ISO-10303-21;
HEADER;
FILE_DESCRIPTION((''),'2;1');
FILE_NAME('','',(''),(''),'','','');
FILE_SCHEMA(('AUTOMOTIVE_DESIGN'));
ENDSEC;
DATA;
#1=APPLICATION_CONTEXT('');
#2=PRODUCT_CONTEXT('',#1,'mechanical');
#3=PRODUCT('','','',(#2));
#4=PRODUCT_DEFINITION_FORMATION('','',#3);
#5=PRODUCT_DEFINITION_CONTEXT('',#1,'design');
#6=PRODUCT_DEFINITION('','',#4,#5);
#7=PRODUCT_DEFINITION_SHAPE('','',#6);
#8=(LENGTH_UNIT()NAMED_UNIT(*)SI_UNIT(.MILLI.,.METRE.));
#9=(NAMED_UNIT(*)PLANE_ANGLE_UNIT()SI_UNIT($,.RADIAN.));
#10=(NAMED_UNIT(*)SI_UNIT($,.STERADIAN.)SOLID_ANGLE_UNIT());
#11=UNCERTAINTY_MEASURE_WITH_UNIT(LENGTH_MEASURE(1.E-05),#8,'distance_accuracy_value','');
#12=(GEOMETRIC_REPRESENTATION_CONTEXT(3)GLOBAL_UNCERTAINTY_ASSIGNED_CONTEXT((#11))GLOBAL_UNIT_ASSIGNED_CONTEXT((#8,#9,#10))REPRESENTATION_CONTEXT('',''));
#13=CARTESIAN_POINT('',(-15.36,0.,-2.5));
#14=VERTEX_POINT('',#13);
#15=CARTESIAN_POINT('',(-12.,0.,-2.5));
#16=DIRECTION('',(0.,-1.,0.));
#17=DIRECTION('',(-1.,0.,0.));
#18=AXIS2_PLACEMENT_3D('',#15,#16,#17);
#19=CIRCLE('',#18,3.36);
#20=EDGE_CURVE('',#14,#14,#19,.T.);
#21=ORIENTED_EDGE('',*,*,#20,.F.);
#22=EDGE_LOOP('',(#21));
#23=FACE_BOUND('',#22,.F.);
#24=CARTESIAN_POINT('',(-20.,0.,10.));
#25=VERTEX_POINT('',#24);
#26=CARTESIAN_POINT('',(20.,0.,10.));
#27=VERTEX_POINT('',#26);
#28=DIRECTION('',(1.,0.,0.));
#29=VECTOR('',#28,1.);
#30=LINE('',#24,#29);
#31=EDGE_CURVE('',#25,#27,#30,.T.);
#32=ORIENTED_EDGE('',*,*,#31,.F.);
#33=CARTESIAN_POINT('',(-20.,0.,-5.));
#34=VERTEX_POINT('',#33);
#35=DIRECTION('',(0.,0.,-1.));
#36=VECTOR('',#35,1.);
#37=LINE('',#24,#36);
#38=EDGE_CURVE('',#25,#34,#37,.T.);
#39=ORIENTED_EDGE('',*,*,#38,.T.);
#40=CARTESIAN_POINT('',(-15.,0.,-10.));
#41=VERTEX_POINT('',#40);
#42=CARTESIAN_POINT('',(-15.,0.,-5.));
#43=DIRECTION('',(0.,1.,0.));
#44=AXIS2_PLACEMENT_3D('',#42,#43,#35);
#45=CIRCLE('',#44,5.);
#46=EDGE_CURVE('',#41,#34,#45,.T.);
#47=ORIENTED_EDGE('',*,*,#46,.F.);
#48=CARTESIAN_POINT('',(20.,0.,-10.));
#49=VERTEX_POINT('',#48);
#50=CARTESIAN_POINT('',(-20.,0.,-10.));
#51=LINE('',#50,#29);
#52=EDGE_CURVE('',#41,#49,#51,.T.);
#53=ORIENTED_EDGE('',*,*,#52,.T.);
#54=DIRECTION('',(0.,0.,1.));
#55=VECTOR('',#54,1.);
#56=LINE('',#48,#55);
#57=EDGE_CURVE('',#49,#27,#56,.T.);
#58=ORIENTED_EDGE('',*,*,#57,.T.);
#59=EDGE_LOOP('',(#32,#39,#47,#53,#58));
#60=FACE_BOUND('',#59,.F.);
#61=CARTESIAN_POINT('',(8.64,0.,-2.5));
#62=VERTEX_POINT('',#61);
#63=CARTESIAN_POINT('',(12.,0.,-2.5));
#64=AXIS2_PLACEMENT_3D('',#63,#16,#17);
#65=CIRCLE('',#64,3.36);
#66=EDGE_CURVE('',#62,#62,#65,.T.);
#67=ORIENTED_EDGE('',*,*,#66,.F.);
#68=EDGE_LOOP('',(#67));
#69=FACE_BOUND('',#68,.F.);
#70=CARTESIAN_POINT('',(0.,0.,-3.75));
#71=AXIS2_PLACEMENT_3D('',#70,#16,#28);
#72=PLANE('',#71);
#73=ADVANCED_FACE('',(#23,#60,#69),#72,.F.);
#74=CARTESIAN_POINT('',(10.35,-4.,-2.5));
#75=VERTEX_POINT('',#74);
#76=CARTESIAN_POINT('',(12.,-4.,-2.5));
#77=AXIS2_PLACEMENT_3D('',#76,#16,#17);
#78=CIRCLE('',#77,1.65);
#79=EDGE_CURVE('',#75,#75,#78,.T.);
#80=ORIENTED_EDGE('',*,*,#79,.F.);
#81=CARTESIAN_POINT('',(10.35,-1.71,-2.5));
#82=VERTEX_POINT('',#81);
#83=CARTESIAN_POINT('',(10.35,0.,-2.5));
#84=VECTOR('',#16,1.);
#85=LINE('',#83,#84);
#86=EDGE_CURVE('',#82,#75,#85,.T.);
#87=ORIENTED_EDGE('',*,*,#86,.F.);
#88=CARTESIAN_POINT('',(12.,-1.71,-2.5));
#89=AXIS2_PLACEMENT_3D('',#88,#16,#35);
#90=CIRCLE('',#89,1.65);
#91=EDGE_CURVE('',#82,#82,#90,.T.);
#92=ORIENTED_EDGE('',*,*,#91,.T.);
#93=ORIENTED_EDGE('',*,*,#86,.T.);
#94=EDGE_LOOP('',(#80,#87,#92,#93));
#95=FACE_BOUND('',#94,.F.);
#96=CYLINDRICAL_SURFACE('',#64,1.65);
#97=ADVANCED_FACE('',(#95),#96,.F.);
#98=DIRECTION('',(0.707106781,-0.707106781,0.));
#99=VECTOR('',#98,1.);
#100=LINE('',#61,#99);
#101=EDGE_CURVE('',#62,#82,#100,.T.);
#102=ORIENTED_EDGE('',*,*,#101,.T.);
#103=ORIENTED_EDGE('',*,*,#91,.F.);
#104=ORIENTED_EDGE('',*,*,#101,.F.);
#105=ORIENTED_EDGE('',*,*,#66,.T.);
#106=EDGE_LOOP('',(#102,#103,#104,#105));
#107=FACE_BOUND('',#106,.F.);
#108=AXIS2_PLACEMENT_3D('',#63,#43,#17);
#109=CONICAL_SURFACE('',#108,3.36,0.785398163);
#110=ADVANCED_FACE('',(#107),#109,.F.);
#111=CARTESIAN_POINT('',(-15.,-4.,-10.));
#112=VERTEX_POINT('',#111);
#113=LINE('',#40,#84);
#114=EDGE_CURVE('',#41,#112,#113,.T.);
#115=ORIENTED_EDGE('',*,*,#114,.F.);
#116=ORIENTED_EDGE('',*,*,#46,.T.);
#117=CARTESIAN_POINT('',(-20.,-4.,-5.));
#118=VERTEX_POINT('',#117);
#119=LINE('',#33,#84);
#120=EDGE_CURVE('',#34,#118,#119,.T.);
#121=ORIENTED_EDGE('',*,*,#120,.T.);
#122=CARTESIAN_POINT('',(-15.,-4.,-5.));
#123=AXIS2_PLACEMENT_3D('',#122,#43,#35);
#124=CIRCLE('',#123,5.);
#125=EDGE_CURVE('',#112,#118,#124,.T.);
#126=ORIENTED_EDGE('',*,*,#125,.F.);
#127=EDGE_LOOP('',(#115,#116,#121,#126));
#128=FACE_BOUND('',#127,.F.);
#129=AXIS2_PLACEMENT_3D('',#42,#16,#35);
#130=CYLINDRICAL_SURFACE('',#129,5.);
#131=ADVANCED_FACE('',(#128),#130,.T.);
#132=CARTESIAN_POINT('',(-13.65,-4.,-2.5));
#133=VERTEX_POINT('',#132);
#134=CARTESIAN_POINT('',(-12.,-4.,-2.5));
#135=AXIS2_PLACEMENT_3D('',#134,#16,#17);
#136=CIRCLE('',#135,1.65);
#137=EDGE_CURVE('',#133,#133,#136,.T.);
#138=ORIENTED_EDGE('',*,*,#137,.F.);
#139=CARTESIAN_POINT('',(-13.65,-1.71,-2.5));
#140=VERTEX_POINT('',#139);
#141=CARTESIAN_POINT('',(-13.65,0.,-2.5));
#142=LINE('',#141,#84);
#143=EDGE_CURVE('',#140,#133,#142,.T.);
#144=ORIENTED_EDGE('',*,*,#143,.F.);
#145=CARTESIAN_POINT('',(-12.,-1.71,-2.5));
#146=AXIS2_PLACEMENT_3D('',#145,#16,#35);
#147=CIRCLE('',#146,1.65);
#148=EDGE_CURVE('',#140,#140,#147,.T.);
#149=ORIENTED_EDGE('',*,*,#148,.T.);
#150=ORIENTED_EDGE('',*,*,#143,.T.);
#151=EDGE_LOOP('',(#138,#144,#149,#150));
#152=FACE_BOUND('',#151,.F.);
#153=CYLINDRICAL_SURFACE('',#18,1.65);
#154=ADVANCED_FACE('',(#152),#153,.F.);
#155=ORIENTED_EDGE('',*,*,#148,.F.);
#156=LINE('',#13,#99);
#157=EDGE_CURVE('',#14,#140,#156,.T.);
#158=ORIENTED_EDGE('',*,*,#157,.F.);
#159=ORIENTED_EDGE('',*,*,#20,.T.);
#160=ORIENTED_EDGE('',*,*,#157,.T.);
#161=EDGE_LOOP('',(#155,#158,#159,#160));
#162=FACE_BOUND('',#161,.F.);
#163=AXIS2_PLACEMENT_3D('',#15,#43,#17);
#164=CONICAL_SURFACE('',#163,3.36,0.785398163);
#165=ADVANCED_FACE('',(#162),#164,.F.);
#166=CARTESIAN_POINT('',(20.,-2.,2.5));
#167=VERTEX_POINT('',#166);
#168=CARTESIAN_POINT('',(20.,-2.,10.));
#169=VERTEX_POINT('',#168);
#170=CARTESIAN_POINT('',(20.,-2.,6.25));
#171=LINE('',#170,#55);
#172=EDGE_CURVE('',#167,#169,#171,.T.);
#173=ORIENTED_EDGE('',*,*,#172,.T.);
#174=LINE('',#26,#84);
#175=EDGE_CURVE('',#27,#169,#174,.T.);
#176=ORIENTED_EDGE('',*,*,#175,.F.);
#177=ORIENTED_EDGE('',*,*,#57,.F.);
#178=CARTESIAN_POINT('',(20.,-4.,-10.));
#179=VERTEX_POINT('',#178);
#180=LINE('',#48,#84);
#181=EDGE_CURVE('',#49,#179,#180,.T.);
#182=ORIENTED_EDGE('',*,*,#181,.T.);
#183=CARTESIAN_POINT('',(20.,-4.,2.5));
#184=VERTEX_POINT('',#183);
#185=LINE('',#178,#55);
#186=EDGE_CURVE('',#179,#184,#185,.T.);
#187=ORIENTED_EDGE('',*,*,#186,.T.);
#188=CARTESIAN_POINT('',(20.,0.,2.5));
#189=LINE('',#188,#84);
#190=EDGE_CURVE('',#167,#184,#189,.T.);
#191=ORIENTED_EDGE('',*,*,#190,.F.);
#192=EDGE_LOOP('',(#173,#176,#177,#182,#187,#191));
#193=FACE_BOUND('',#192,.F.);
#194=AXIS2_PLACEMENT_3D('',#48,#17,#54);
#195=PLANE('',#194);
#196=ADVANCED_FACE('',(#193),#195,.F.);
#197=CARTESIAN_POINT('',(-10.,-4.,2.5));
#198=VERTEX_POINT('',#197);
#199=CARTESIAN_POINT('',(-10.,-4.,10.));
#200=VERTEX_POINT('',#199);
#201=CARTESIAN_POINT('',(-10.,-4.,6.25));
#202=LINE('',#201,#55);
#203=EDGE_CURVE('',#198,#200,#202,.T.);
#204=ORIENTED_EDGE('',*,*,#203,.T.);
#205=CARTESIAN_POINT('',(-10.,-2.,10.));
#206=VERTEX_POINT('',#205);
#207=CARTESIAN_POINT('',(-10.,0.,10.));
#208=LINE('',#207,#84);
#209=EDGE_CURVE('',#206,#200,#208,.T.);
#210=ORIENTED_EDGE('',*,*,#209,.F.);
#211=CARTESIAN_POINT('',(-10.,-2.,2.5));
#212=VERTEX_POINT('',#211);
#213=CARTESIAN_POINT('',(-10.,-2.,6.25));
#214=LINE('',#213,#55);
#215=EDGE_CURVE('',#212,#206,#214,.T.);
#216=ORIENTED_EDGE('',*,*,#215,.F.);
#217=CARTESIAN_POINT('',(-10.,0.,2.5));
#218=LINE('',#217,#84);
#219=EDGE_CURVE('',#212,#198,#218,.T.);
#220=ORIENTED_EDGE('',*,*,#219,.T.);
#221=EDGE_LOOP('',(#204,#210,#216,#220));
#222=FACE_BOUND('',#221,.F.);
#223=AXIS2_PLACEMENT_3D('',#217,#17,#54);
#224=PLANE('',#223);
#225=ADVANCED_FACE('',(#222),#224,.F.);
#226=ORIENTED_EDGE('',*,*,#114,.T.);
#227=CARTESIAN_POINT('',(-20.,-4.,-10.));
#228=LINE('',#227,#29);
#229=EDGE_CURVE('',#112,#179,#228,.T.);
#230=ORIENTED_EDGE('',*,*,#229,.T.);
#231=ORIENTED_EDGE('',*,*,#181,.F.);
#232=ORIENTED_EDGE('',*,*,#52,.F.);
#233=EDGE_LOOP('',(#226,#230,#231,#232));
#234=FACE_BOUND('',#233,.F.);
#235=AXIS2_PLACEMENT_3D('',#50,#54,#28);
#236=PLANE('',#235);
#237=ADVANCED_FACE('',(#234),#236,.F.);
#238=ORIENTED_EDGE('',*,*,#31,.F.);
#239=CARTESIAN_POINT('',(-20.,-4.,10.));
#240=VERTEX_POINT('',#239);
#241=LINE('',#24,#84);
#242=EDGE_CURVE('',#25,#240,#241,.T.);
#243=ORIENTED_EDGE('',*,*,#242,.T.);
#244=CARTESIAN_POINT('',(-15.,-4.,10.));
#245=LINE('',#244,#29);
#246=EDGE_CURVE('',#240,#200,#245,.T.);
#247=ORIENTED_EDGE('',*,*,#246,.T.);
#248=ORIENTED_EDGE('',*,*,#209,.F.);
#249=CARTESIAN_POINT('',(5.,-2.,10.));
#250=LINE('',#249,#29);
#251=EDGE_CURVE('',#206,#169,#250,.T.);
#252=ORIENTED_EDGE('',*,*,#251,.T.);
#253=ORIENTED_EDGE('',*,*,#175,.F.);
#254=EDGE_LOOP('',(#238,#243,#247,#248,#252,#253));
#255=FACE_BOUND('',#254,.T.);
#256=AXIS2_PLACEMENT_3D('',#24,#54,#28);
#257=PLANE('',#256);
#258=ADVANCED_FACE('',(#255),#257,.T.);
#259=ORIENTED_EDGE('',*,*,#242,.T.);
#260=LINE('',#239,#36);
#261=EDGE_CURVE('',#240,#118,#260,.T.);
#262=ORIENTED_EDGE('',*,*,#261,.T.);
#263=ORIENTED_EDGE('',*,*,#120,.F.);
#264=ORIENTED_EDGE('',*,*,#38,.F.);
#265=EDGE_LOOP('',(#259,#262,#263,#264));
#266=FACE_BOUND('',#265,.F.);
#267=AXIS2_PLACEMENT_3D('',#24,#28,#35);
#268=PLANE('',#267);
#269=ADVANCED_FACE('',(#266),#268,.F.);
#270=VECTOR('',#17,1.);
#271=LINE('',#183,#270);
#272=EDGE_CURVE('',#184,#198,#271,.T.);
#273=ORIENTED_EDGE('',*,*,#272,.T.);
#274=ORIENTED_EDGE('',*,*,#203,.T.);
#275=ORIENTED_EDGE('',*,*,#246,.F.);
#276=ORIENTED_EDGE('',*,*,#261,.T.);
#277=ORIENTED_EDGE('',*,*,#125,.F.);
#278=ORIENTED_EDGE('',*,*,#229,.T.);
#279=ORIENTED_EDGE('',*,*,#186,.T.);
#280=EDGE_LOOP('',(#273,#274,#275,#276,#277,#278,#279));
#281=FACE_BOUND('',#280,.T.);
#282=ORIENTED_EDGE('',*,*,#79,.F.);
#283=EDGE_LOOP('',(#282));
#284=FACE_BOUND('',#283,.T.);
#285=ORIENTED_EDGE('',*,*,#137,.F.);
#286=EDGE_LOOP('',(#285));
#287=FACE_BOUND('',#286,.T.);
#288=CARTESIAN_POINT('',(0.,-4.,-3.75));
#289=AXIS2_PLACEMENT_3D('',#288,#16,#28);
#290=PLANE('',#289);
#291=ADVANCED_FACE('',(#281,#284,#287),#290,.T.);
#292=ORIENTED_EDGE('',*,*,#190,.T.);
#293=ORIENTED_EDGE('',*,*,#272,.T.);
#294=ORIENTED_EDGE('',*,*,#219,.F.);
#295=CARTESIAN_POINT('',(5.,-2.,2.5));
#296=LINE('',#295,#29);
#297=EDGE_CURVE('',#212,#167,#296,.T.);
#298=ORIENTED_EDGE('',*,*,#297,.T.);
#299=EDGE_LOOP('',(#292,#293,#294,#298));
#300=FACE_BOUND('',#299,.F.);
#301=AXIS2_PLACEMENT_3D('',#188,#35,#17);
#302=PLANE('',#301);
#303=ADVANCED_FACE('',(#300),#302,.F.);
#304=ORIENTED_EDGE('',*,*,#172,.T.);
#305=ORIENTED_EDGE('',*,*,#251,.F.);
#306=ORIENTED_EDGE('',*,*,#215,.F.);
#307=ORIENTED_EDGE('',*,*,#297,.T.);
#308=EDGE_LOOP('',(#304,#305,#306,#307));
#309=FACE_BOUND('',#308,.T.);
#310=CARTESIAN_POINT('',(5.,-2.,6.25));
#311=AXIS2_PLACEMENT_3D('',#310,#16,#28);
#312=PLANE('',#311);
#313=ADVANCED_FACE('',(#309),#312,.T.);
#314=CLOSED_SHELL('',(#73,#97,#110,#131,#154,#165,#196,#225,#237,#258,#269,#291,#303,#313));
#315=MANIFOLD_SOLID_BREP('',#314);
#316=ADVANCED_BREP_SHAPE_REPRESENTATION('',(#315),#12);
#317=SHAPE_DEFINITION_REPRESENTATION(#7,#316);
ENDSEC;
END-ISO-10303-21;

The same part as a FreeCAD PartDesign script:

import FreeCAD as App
import Part
import Sketcher


def edges_at(feature, points):
    """Names of the edges that pass closest to the given points."""
    edges = feature.Shape.Edges
    near = lambda p: min(range(len(edges)), key=lambda i: edges[i].distToShape(Part.Vertex(*p))[0])
    return sorted({f"Edge{near(p) + 1}" for p in points})


def add_polygon(sketch, points):
    """Adds a closed chain of lines whose ends are joined by coincident constraints."""
    first, n = sketch.GeometryCount, len(points)
    for a, b in zip(points, points[1:] + points[:1]):
        sketch.addGeometry(Part.LineSegment(App.Vector(*a, 0), App.Vector(*b, 0)), False)
    for i in range(n):
        sketch.addConstraint(Sketcher.Constraint("Coincident", first + i, 2, first + (i + 1) % n, 1))

doc = App.newDocument("Part")
params = doc.addObject("Spreadsheet::Sheet", "Params")
for row, (alias, value) in enumerate([
    ("sketch1_width", "30 mm"),
    ("sketch1_height", "7.5 mm"),
    ("pad1_length", "2 mm"),
    ("sketch2_width", "40 mm"),
    ("sketch2_width2", "30 mm"),
    ("sketch2_height", "20 mm"),
    ("sketch2_height2", "12.5 mm"),
    ("pad2_length", "4 mm"),
    ("sketch3_diameter", "3.3 mm"),
    ("hole_diameter", "3.3 mm"),
    ("hole_csink_diameter", "6.72 mm"),
    ("fillet_radius", "5 mm"),
], start=1):
    params.set(f"A{row}", alias)
    params.set(f"B{row}", "=" + value)
    params.setAlias(f"B{row}", alias)

body = doc.addObject("PartDesign::Body", "Body")

# Sketch on XZ plane
sketch1 = body.newObject("Sketcher::SketchObject", "Sketch")
sketch1.AttachmentSupport = (doc.getObject("XZ_Plane"), [""])
sketch1.MapMode = "FlatFace"
add_polygon(sketch1, [(-10, 10), (-10, 2), (20, 2), (20, 10)])  # lines 0-3
sketch1.addConstraint([
    Sketcher.Constraint("Vertical", 0),
    Sketcher.Constraint("Horizontal", 1),
    Sketcher.Constraint("Vertical", 2),
    Sketcher.Constraint("Horizontal", 3),
    Sketcher.Constraint("DistanceX", 1, 1, 1, 2, 30.0),
    Sketcher.Constraint("DistanceY", 0, 2, 0, 1, 7.5),
    Sketcher.Constraint("DistanceX", 0, 2, -1, 1, 10.0),
    Sketcher.Constraint("DistanceY", -1, 1, 2, 2, 10.0),
])
sketch1.setExpression("Constraints[8]", "Params.sketch1_width")
sketch1.setExpression("Constraints[9]", "Params.sketch1_height")
pad1 = body.newObject("PartDesign::Pad", "Pad")
pad1.Profile = sketch1
pad1.setExpression("Length", "Params.pad1_length")

# Sketch on XZ plane
sketch2 = body.newObject("Sketcher::SketchObject", "Sketch001")
sketch2.AttachmentSupport = (doc.getObject("XZ_Plane"), [""])
sketch2.MapMode = "FlatFace"
add_polygon(sketch2, [(-20, -10), (20, -10), (20, 2), (-10, 2), (-10, 10), (-20, 10)])  # lines 0-5
sketch2.addConstraint([
    Sketcher.Constraint("Horizontal", 0),
    Sketcher.Constraint("Vertical", 1),
    Sketcher.Constraint("Horizontal", 2),
    Sketcher.Constraint("Vertical", 3),
    Sketcher.Constraint("Horizontal", 4),
    Sketcher.Constraint("Vertical", 5),
    Sketcher.Constraint("Symmetric", 0, 2, 4, 2, -1, 1),
    Sketcher.Constraint("DistanceX", 0, 1, 0, 2, 40.0),
    Sketcher.Constraint("DistanceX", 2, 2, 2, 1, 30.0),
    Sketcher.Constraint("DistanceY", 5, 2, 5, 1, 20.0),
    Sketcher.Constraint("DistanceY", 1, 1, 1, 2, 12.5),
])
sketch2.setExpression("Constraints[13]", "Params.sketch2_width")
sketch2.setExpression("Constraints[14]", "Params.sketch2_width2")
sketch2.setExpression("Constraints[15]", "Params.sketch2_height")
sketch2.setExpression("Constraints[16]", "Params.sketch2_height2")
pad2 = body.newObject("PartDesign::Pad", "Pad001")
pad2.Profile = sketch2
pad2.setExpression("Length", "Params.pad2_length")

# Sketch on XZ plane
sketch3 = body.newObject("Sketcher::SketchObject", "Sketch002")
sketch3.AttachmentSupport = (doc.getObject("XZ_Plane"), [""])
sketch3.MapMode = "FlatFace"
sketch3.addGeometry([
    Part.Circle(App.Vector(-12, -2.5, 0), App.Vector(0, 0, 1), 1.6),
    Part.Circle(App.Vector(12, -2.5, 0), App.Vector(0, 0, 1), 1.6),
], False)
sketch3.addConstraint([
    Sketcher.Constraint("Equal", 0, 1),
    Sketcher.Constraint("Symmetric", 0, 3, 1, 3, -2),
    Sketcher.Constraint("Diameter", 0, 3.3),
    Sketcher.Constraint("DistanceX", 0, 3, -1, 1, 12.0),
    Sketcher.Constraint("DistanceY", 0, 3, -1, 1, 2.5),
])
sketch3.setExpression("Constraints[2]", "Params.sketch3_diameter")
doc.recompute()
hole = body.newObject("PartDesign::Hole", "Hole")
hole.Profile = sketch3
hole.ThreadType = "None"
hole.setExpression("Diameter", "Params.hole_diameter")
hole.DepthType = "ThroughAll"
hole.HoleCutType = "Countersink"
hole.setExpression("HoleCutDiameter", "Params.hole_csink_diameter")
hole.HoleCutCountersinkAngle = 90
hole.Reversed = True
doc.recompute()

fillet = body.newObject("PartDesign::Fillet", "Fillet")
fillet.Base = (hole, edges_at(hole, [(-20, -2, -10)]))
fillet.setExpression("Radius", "Params.fillet_radius")

doc.recompute()
